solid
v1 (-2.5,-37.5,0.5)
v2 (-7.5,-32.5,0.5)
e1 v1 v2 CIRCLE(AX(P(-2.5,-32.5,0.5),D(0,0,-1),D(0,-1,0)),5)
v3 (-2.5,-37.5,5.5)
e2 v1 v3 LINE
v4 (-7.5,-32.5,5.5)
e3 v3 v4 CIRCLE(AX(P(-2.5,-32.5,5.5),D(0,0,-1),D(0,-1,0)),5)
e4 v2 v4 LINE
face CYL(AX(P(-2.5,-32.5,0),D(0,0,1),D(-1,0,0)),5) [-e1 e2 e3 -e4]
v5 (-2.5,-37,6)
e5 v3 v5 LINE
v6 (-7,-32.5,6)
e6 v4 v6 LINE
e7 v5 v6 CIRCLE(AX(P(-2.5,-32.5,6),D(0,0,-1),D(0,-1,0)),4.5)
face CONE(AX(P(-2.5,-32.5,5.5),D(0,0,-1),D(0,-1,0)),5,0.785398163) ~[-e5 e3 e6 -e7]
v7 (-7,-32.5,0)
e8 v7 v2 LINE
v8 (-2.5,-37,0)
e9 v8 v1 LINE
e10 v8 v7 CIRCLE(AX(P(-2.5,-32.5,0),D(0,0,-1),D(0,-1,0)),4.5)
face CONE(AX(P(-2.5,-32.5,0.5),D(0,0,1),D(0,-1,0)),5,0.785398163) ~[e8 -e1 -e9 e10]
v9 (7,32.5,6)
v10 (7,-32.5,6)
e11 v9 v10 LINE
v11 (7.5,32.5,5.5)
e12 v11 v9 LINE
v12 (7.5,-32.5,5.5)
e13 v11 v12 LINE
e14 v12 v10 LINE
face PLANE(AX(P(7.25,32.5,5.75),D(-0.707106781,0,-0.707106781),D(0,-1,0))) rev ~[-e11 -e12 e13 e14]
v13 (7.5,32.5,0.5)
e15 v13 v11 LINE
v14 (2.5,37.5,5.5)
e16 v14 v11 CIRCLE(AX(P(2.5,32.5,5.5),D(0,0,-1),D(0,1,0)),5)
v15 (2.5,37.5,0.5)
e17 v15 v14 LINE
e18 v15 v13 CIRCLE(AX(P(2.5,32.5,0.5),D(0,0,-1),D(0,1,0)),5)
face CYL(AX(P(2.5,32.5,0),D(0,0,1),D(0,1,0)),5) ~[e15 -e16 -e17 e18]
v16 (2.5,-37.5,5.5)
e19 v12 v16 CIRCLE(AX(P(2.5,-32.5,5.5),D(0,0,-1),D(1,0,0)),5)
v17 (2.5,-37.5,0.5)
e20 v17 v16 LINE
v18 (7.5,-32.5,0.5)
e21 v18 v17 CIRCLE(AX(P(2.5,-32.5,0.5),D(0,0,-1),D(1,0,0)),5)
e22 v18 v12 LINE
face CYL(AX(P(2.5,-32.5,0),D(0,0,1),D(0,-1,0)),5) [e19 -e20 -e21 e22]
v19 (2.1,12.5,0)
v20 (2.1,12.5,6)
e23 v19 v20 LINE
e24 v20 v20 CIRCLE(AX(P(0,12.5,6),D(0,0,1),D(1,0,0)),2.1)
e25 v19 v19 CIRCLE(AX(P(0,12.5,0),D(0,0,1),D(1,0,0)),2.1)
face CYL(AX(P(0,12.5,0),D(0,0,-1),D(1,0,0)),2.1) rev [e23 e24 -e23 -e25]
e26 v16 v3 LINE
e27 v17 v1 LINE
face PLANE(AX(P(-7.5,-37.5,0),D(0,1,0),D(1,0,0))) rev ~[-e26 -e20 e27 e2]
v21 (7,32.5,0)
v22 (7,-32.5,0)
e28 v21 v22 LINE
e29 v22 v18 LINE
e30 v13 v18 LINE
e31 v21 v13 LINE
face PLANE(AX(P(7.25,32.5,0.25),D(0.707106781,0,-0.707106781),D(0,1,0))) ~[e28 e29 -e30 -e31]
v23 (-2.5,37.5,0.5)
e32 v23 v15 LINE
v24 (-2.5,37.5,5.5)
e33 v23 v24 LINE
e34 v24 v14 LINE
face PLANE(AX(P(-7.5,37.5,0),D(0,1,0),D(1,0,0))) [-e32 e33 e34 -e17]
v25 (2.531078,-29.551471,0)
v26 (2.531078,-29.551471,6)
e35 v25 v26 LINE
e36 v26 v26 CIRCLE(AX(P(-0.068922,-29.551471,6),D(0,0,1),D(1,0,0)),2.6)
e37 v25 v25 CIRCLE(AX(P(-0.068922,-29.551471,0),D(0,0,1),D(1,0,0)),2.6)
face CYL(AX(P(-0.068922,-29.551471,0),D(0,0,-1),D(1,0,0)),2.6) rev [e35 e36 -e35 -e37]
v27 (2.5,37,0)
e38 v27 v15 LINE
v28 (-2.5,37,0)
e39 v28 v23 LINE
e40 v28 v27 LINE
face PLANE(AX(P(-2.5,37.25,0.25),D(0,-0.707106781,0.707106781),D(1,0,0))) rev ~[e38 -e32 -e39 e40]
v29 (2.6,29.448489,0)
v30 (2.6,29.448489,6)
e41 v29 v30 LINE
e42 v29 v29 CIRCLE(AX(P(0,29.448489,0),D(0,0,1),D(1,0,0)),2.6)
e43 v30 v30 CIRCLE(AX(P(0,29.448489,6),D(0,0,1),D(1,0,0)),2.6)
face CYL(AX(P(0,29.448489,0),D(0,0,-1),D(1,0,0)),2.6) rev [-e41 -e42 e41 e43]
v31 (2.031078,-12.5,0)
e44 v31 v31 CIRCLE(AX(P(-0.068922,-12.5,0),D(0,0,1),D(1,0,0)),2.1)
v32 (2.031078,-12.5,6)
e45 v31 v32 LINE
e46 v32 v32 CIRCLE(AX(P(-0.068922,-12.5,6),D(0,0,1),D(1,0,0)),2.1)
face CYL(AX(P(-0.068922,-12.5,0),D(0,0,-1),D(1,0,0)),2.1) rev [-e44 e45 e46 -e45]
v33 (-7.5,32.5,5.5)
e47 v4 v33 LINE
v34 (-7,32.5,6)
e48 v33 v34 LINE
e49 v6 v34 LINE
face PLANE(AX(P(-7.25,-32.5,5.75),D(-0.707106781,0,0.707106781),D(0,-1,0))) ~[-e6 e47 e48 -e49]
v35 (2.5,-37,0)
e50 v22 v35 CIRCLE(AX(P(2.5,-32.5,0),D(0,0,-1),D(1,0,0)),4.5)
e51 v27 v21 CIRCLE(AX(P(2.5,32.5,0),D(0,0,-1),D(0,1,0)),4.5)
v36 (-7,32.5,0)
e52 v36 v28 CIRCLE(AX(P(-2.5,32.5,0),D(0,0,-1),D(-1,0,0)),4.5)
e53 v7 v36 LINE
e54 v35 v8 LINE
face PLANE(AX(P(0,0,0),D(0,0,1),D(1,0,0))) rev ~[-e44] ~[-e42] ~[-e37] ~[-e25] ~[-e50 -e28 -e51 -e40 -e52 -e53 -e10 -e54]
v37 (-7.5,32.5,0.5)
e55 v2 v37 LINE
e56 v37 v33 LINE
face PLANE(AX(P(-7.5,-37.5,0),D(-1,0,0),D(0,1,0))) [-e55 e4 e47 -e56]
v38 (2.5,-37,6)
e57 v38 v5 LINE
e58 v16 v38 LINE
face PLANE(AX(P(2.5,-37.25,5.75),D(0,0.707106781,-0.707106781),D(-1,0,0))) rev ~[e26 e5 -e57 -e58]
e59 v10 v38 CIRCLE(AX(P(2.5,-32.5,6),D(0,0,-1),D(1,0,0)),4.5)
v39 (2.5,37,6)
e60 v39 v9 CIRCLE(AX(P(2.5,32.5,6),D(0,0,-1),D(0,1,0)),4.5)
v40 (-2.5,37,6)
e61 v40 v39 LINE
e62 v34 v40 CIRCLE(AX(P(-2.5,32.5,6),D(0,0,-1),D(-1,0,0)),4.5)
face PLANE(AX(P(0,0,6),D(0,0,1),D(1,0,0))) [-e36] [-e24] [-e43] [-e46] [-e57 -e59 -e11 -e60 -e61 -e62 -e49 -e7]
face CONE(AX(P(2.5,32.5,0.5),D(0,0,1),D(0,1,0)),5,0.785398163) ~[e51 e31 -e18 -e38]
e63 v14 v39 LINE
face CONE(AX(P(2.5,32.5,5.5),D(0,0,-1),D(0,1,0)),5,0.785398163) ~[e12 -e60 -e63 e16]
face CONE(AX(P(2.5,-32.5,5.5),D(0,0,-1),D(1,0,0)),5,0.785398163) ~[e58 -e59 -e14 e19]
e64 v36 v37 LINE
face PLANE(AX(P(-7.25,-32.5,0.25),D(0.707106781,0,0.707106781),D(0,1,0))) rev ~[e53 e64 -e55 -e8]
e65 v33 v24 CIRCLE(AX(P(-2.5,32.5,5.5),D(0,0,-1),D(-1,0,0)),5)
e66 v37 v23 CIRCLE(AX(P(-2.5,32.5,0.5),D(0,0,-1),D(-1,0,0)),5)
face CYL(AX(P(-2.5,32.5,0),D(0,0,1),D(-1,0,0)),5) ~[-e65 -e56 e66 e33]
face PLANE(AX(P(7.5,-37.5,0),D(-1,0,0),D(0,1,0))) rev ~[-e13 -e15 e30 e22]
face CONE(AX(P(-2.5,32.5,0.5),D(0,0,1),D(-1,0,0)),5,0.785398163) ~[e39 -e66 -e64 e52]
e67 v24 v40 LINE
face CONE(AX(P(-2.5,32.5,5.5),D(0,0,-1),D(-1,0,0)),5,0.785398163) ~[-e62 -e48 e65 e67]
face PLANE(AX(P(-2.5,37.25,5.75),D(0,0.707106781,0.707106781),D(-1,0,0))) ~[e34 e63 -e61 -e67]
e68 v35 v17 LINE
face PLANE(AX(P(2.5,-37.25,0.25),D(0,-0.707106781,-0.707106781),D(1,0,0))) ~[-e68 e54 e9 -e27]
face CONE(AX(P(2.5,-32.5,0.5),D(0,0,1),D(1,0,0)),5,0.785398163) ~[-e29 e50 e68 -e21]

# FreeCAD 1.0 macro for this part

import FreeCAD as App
import Part
import Sketcher


def edges_at(feature, points):
    """Names of the edges that pass closest to the given points."""
    edges = feature.Shape.Edges
    near = lambda p: min(range(len(edges)), key=lambda i: edges[i].distToShape(Part.Vertex(*p))[0])
    return sorted({f"Edge{near(p) + 1}" for p in points})


def add_polygon(sketch, points):
    """Adds a closed chain of lines whose ends are joined by coincident constraints."""
    first, n = sketch.GeometryCount, len(points)
    for a, b in zip(points, points[1:] + points[:1]):
        sketch.addGeometry(Part.LineSegment(App.Vector(*a, 0), App.Vector(*b, 0)), False)
    for i in range(n):
        sketch.addConstraint(Sketcher.Constraint("Coincident", first + i, 2, first + (i + 1) % n, 1))

doc = App.newDocument("Part")
body = doc.addObject("PartDesign::Body", "Body")

# Sketch on XY plane
sketch1 = body.newObject("Sketcher::SketchObject", "Sketch")
sketch1.AttachmentSupport = (doc.getObject("XY_Plane"), [""])
sketch1.MapMode = "FlatFace"
add_polygon(sketch1, [(-7.5, 37.5), (-7.5, -37.5), (7.5, -37.5), (7.5, 37.5)])  # lines 0-3
sketch1.addGeometry(Part.Circle(App.Vector(-0.1, -29.6, 0), App.Vector(0, 0, 1), 2.6), False)  # 4
sketch1.addGeometry(Part.Circle(App.Vector(-0.1, -12.5, 0), App.Vector(0, 0, 1), 2.1), False)  # 5
sketch1.addGeometry(Part.Circle(App.Vector(0, 12.5, 0), App.Vector(0, 0, 1), 2.1), False)  # 6
sketch1.addGeometry(Part.Circle(App.Vector(0, 29.4, 0), App.Vector(0, 0, 1), 2.6), False)  # 7
sketch1.addConstraint(Sketcher.Constraint("Vertical", 0))
sketch1.addConstraint(Sketcher.Constraint("Horizontal", 1))
sketch1.addConstraint(Sketcher.Constraint("Vertical", 2))
sketch1.addConstraint(Sketcher.Constraint("Horizontal", 3))
sketch1.addConstraint(Sketcher.Constraint("Equal", 5, 6))
sketch1.addConstraint(Sketcher.Constraint("Equal", 4, 7))
sketch1.addConstraint(Sketcher.Constraint("Symmetric", 0, 2, 2, 2, -1, 1))
sketch1.addConstraint(Sketcher.Constraint("PointOnObject", 6, 3, -2))
sketch1.addConstraint(Sketcher.Constraint("PointOnObject", 7, 3, -2))
sketch1.addConstraint(Sketcher.Constraint("Vertical", 4, 3, 5, 3))
sketch1.addConstraint(Sketcher.Constraint("Diameter", 4, 5.2))
sketch1.addConstraint(Sketcher.Constraint("Diameter", 5, 4.2))
sketch1.addConstraint(Sketcher.Constraint("DistanceX", 1, 1, 1, 2, 15.0))
sketch1.addConstraint(Sketcher.Constraint("DistanceY", 0, 2, 0, 1, 75.0))
sketch1.addConstraint(Sketcher.Constraint("DistanceY", 5, 3, 6, 3, 25.0))
sketch1.addConstraint(Sketcher.Constraint("DistanceY", 0, 2, 5, 3, 25.0))
sketch1.addConstraint(Sketcher.Constraint("DistanceY", 4, 3, -1, 1, 29.551471))
sketch1.addConstraint(Sketcher.Constraint("DistanceY", -1, 1, 7, 3, 29.448489))
sketch1.addConstraint(Sketcher.Constraint("DistanceX", 4, 3, -1, 1, 0.068922))
pad1 = body.newObject("PartDesign::Pad", "Pad")
pad1.Profile = sketch1
pad1.Length = 6
doc.recompute()

fillet = body.newObject("PartDesign::Fillet", "Fillet")
fillet.Base = (pad1, edges_at(pad1, [
    (-7.5, 37.5, 3),
    (7.5, 37.5, 3),
    (-7.5, -37.5, 3),
    (7.5, -37.5, 3),
]))
fillet.Radius = 5
doc.recompute()

chamfer = body.newObject("PartDesign::Chamfer", "Chamfer")
chamfer.Base = (fillet, edges_at(fillet, [
    (-7.5, 0, 6),
    (7.5, 0, 6),
    (6.036, 36.036, 6),
    (0, 37.5, 6),
    (-6.036, 36.036, 6),
    (-6.036, -36.036, 6),
    (0, -37.5, 6),
    (6.036, -36.036, 6),
    (-6.036, 36.036, 0),
    (0, 37.5, 0),
    (6.036, 36.036, 0),
    (7.5, 0, 0),
    (-7.5, 0, 0),
    (-6.036, -36.036, 0),
    (0, -37.5, 0),
    (6.036, -36.036, 0),
]))
chamfer.Size = 0.5

doc.recompute()
